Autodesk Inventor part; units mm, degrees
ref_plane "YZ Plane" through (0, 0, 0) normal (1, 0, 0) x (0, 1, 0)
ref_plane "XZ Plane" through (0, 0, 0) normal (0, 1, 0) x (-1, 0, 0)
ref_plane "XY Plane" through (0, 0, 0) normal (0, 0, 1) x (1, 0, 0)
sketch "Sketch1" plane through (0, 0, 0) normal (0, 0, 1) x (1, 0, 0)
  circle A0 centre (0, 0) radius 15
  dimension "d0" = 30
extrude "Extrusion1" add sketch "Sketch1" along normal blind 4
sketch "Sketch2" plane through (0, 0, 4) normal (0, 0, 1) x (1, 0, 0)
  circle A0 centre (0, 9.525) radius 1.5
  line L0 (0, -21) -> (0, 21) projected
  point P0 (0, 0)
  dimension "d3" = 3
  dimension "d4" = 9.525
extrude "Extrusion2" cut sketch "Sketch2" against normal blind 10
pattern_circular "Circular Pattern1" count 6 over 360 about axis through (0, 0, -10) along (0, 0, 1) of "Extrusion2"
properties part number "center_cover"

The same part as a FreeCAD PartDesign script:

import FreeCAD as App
import Part
import Sketcher

doc = App.newDocument("Part")
body = doc.addObject("PartDesign::Body", "Body")

# Sketch on XY plane
sketch1 = doc.addObject("Sketcher::SketchObject", "Sketch")
body.addObject(sketch1)
sketch1.AttachmentSupport = (doc.XY_Plane, [""])
sketch1.MapMode = "FlatFace"
sketch1.addGeometry(Part.Circle(App.Vector(0, 0, 0), App.Vector(0, 0, 1), 15), False)
sketch1.addConstraint(Sketcher.Constraint("Coincident", 0, 3, -1, 1))
sketch1.addConstraint(Sketcher.Constraint("Diameter", 0, 30.0))
pad1 = doc.addObject("PartDesign::Pad", "Pad")
body.addObject(pad1)
pad1.Profile = sketch1
pad1.Length = 4

# Sketch on XY plane
sketch2 = doc.addObject("Sketcher::SketchObject", "Sketch001")
body.addObject(sketch2)
sketch2.AttachmentSupport = (doc.XY_Plane, [""])
sketch2.MapMode = "FlatFace"
sketch2.AttachmentOffset = App.Placement(App.Vector(0, 0, 4), App.Rotation())
sketch2.addGeometry(Part.Circle(App.Vector(0, 9.525, 0), App.Vector(0, 0, 1), 1.5), False)
sketch2.addConstraint(Sketcher.Constraint("PointOnObject", 0, 3, -2))
sketch2.addConstraint(Sketcher.Constraint("Diameter", 0, 3.0))
sketch2.addConstraint(Sketcher.Constraint("DistanceY", -1, 1, 0, 3, 9.525))
pocket1 = doc.addObject("PartDesign::Pocket", "Pocket")
body.addObject(pocket1)
pocket1.Profile = sketch2
pocket1.Length = 10
doc.recompute()

polarpattern = doc.addObject("PartDesign::PolarPattern", "PolarPattern")
body.addObject(polarpattern)
polarpattern.Originals = [pocket1]
polarpattern.Axis = (doc.Z_Axis, [""])
polarpattern.Angle = 360
polarpattern.Occurrences = 6
body.Tip = polarpattern

doc.recompute()
